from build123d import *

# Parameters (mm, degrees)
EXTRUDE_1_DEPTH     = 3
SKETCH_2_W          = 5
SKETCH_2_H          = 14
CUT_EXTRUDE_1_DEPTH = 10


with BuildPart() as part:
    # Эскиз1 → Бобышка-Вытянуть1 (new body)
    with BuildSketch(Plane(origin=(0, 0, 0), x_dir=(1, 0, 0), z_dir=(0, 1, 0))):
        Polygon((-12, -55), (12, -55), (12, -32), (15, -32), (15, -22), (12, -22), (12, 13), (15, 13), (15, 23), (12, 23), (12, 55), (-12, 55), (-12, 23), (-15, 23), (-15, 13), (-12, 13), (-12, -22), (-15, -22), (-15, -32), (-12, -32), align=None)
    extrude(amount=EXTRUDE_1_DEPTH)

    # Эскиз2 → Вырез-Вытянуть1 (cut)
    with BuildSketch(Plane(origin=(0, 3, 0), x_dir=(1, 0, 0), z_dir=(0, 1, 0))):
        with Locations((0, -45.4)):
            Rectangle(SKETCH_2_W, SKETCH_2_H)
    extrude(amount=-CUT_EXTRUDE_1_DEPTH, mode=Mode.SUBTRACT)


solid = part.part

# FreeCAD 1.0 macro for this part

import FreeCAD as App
import Part
import Sketcher
Q = App.Units.Quantity


def add_polygon(sketch, points):
    """Adds a closed chain of lines whose ends are joined by coincident constraints."""
    first, n = sketch.GeometryCount, len(points)
    for a, b in zip(points, points[1:] + points[:1]):
        sketch.addGeometry(Part.LineSegment(App.Vector(*a, 0), App.Vector(*b, 0)), False)
    for i in range(n):
        sketch.addConstraint(Sketcher.Constraint("Coincident", first + i, 2, first + (i + 1) % n, 1))

doc = App.newDocument("Part")
body = doc.addObject("PartDesign::Body", "Body")

# Sketch on XZ plane
sketch1 = body.newObject("Sketcher::SketchObject", "Sketch")
sketch1.AttachmentSupport = (doc.getObject("XZ_Plane"), [""])
sketch1.MapMode = "FlatFace"
add_polygon(sketch1, [(-12, 55), (12, 55), (12, 32), (15, 32), (15, 22), (12, 22), (12, -13), (15, -13), (15, -23), (12, -23), (12, -55), (-12, -55), (-12, -23), (-15, -23), (-15, -13), (-12, -13), (-12, 22), (-15, 22), (-15, 32), (-12, 32)])  # lines 0-19
sketch1.addConstraint([
    Sketcher.Constraint("Horizontal", 0),
    Sketcher.Constraint("Vertical", 1),
    Sketcher.Constraint("Horizontal", 2),
    Sketcher.Constraint("Vertical", 3),
    Sketcher.Constraint("Horizontal", 4),
    Sketcher.Constraint("Vertical", 5),
    Sketcher.Constraint("Horizontal", 6),
    Sketcher.Constraint("Vertical", 7),
    Sketcher.Constraint("Horizontal", 8),
    Sketcher.Constraint("Vertical", 9),
    Sketcher.Constraint("Horizontal", 10),
    Sketcher.Constraint("Vertical", 11),
    Sketcher.Constraint("Horizontal", 12),
    Sketcher.Constraint("Vertical", 13),
    Sketcher.Constraint("Horizontal", 14),
    Sketcher.Constraint("Vertical", 15),
    Sketcher.Constraint("Horizontal", 16),
    Sketcher.Constraint("Vertical", 17),
    Sketcher.Constraint("Horizontal", 18),
    Sketcher.Constraint("Vertical", 19),
    Sketcher.Constraint("Symmetric", 0, 2, 10, 2, -1, 1),
    Sketcher.Constraint("Symmetric", 8, 2, 11, 2, -2),
    Sketcher.Constraint("Symmetric", 6, 2, 13, 2, -2),
    Sketcher.Constraint("Symmetric", 4, 2, 15, 2, -2),
    Sketcher.Constraint("Symmetric", 2, 2, 17, 2, -2),
    Sketcher.Constraint("Vertical", 1, 2, 4, 2),
    Sketcher.Constraint("Vertical", 3, 2, 6, 2),
    Sketcher.Constraint("Vertical", 15, 2, 18, 2),
    Sketcher.Constraint("Equal", 3, 7),
    Sketcher.Constraint("DistanceX", 0, 1, 0, 2, Q("24 mm")),
    Sketcher.Constraint("DistanceX", 2, 1, 2, 2, Q("3 mm")),
    Sketcher.Constraint("DistanceY", 1, 2, 1, 1, Q("23 mm")),
    Sketcher.Constraint("DistanceY", 3, 2, 3, 1, Q("10 mm")),
    Sketcher.Constraint("DistanceY", 5, 2, 5, 1, Q("35 mm")),
    Sketcher.Constraint("DistanceY", 9, 2, 9, 1, Q("32 mm")),
])
pad1 = body.newObject("PartDesign::Pad", "Pad")
pad1.Profile = sketch1
pad1.Length = 3
pad1.Reversed = True

# Sketch on XZ plane
sketch2 = body.newObject("Sketcher::SketchObject", "Sketch001")
sketch2.AttachmentSupport = (doc.getObject("XZ_Plane"), [""])
sketch2.MapMode = "FlatFace"
sketch2.AttachmentOffset = App.Placement(App.Vector(0, 0, -3), App.Rotation())
add_polygon(sketch2, [(-2, 38), (-2, 52), (2, 52), (2, 38)])  # lines 0-3
sketch2.addConstraint([
    Sketcher.Constraint("Vertical", 0),
    Sketcher.Constraint("Horizontal", 1),
    Sketcher.Constraint("Vertical", 2),
    Sketcher.Constraint("Horizontal", 3),
    Sketcher.Constraint("DistanceX", 1, 1, 1, 2, Q("5 mm")),
    Sketcher.Constraint("DistanceY", 0, 1, 0, 2, Q("14 mm")),
    Sketcher.Constraint("DistanceX", 0, 2, -1, 1, Q("2.5 mm")),
    Sketcher.Constraint("DistanceY", -1, 1, 0, 2, Q("52.4 mm")),
])
pocket1 = body.newObject("PartDesign::Pocket", "Pocket")
pocket1.Profile = sketch2
pocket1.Length = 10
pocket1.Reversed = True

doc.recompute()
